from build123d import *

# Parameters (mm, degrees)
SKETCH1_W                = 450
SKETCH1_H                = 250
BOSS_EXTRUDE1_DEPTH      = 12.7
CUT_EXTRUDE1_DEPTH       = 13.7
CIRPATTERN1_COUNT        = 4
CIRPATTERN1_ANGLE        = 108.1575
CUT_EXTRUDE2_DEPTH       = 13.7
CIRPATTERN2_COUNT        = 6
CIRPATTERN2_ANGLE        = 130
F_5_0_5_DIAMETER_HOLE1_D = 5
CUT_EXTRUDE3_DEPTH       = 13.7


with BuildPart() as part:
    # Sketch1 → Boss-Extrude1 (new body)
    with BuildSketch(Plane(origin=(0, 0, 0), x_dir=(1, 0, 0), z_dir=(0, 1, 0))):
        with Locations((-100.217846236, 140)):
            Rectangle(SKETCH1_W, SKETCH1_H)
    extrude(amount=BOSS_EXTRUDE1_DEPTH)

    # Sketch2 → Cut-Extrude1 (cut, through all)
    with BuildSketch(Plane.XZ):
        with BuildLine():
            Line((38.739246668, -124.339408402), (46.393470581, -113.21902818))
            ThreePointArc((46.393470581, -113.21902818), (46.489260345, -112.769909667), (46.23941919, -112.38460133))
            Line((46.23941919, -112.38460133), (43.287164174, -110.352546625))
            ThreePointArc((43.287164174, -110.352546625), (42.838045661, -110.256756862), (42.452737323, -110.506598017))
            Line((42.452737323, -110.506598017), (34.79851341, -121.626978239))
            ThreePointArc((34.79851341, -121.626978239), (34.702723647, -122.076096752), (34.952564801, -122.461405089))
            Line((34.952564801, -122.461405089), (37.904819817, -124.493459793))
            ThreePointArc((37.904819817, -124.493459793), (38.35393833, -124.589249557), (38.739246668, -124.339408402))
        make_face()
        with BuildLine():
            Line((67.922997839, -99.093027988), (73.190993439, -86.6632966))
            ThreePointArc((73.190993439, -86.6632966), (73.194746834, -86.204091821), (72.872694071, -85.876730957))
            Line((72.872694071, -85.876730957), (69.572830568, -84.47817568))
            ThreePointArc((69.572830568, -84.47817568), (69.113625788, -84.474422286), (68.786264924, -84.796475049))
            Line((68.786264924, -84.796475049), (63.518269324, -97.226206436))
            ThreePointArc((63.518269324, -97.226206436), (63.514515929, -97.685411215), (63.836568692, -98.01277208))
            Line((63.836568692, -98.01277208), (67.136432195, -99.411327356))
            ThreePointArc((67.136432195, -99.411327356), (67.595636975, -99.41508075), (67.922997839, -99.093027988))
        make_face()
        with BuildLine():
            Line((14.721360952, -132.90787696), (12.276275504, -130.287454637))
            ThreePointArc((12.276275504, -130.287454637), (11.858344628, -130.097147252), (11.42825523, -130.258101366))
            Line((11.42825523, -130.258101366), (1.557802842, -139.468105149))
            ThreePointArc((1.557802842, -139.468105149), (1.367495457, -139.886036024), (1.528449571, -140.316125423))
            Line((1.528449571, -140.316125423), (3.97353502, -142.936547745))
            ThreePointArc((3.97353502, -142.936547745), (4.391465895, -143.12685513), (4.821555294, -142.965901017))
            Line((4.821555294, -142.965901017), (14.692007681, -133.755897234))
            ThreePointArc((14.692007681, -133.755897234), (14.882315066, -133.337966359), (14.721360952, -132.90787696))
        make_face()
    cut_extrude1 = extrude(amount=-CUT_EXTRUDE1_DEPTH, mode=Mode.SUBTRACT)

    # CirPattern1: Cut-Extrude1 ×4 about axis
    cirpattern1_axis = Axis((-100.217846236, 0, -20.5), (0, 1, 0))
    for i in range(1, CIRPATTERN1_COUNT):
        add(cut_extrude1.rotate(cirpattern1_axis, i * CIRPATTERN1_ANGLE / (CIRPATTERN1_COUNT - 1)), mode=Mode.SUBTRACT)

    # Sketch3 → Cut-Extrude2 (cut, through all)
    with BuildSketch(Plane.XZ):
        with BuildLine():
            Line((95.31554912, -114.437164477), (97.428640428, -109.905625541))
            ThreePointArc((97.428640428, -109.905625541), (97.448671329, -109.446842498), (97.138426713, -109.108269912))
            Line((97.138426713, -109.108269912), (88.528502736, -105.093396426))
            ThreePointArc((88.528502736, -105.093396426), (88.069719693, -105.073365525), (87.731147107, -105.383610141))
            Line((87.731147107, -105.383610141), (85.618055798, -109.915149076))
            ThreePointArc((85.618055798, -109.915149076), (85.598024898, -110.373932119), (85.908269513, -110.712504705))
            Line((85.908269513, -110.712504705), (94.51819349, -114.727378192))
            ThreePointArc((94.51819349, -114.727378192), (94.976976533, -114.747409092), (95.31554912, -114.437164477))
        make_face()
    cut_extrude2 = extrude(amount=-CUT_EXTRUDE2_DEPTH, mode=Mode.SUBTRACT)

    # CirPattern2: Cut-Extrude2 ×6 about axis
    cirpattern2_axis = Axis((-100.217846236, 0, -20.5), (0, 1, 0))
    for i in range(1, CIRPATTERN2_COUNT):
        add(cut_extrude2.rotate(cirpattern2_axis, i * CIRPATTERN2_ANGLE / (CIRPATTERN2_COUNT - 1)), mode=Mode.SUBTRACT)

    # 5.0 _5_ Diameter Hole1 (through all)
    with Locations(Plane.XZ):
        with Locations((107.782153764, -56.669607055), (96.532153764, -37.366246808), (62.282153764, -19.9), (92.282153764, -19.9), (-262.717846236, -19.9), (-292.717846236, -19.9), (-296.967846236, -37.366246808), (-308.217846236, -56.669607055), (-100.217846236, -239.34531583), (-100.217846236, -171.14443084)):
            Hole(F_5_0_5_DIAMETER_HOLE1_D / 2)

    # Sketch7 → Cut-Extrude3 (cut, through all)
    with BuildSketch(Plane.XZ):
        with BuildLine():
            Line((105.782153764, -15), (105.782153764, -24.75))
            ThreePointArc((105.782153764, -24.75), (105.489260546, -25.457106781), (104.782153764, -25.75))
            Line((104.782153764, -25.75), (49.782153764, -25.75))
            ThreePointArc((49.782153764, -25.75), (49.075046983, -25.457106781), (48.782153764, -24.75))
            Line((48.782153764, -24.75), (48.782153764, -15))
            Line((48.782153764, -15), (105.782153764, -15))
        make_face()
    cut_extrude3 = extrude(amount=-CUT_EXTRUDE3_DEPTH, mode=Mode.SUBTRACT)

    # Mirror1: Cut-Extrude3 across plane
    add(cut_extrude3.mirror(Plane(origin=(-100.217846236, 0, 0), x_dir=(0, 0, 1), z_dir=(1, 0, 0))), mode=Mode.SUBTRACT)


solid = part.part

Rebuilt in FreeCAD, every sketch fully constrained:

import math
import FreeCAD as App
import Part
import Sketcher

V = App.Vector
Q = App.Units.Quantity


def add_polygon(sketch, points):
    """Adds a closed chain of lines whose ends are joined by coincident constraints."""
    first, n = sketch.GeometryCount, len(points)
    for a, b in zip(points, points[1:] + points[:1]):
        sketch.addGeometry(Part.LineSegment(App.Vector(*a, 0), App.Vector(*b, 0)), False)
    for i in range(n):
        sketch.addConstraint(Sketcher.Constraint("Coincident", first + i, 2, first + (i + 1) % n, 1))

doc = App.newDocument("Part")
body = doc.addObject("PartDesign::Body", "Body")

sketch1 = doc.addObject("Sketcher::SketchObject", "Sketch")
body.addObject(sketch1)
sketch1.AttachmentSupport = (doc.XZ_Plane, [""])
sketch1.MapMode = "FlatFace"
add_polygon(sketch1, [(-325.217846, -265), (-325.217846, -15), (124.782154, -15), (124.782154, -265)])
sketch1.addConstraint(Sketcher.Constraint("Vertical", 0))
sketch1.addConstraint(Sketcher.Constraint("Horizontal", 1))
sketch1.addConstraint(Sketcher.Constraint("Vertical", 2))
sketch1.addConstraint(Sketcher.Constraint("Horizontal", 3))
sketch1.addConstraint(Sketcher.Constraint("DistanceX", 1, 1, 1, 2, Q("450 mm")))
sketch1.addConstraint(Sketcher.Constraint("DistanceY", 0, 1, 0, 2, Q("250 mm")))
sketch1.addConstraint(Sketcher.Constraint("DistanceY", 0, 2, -1, 1, Q("15 mm")))
sketch1.addConstraint(Sketcher.Constraint("DistanceX", 0, 2, -1, 1, Q("325.217846 mm")))
pad1 = doc.addObject("PartDesign::Pad", "Pad")
body.addObject(pad1)
pad1.Profile = sketch1
pad1.Length = 12.7
pad1.Reversed = True

sketch2 = doc.addObject("Sketcher::SketchObject", "Sketch001")
body.addObject(sketch2)
sketch2.AttachmentSupport = (doc.XZ_Plane, [""])
sketch2.MapMode = "FlatFace"
sketch2.addGeometry(Part.LineSegment(V(38.739247, -124.339408, 0), V(46.393471, -113.219028, 0)), False)
sketch2.addGeometry(Part.ArcOfCircle(Part.Circle(V(45.899231, -112.87884, 0), V(0, 0, 1), 0.6), math.radians(-34.539868), math.radians(55.460132)), False)
sketch2.addGeometry(Part.LineSegment(V(46.239419, -112.384601, 0), V(43.287164, -110.352547, 0)), False)
sketch2.addGeometry(Part.ArcOfCircle(Part.Circle(V(42.946976, -110.846786, 0), V(0, 0, 1), 0.6), math.radians(55.460132), math.radians(145.460132)), False)
sketch2.addGeometry(Part.LineSegment(V(42.452737, -110.506598, 0), V(34.798513, -121.626978, 0)), False)
sketch2.addGeometry(Part.ArcOfCircle(Part.Circle(V(35.292753, -121.967166, 0), V(0, 0, 1), 0.6), math.radians(145.460132), math.radians(235.460132)), False)
sketch2.addGeometry(Part.LineSegment(V(34.952565, -122.461405, 0), V(37.90482, -124.49346, 0)), False)
sketch2.addGeometry(Part.ArcOfCircle(Part.Circle(V(38.245008, -123.999221, 0), V(0, 0, 1), 0.6), math.radians(-124.539868), math.radians(-34.539868)), False)
sketch2.addGeometry(Part.LineSegment(V(67.922998, -99.093028, 0), V(73.190993, -86.663297, 0)), False)
sketch2.addGeometry(Part.ArcOfCircle(Part.Circle(V(72.638561, -86.429163, 0), V(0, 0, 1), 0.6), math.radians(-22.968307), math.radians(67.031693)), False)
sketch2.addGeometry(Part.LineSegment(V(72.872694, -85.876731, 0), V(69.572831, -84.478176, 0)), False)
sketch2.addGeometry(Part.ArcOfCircle(Part.Circle(V(69.338697, -85.030608, 0), V(0, 0, 1), 0.6), math.radians(67.031693), math.radians(157.031693)), False)
sketch2.addGeometry(Part.LineSegment(V(68.786265, -84.796475, 0), V(63.518269, -97.226206, 0)), False)
sketch2.addGeometry(Part.ArcOfCircle(Part.Circle(V(64.070702, -97.46034, 0), V(0, 0, 1), 0.6), math.radians(157.031693), math.radians(247.031693)), False)
sketch2.addGeometry(Part.LineSegment(V(63.836569, -98.012772, 0), V(67.136432, -99.411327, 0)), False)
sketch2.addGeometry(Part.ArcOfCircle(Part.Circle(V(67.370565, -98.858895, 0), V(0, 0, 1), 0.6), math.radians(-112.968307), math.radians(-22.968307)), False)
sketch2.addGeometry(Part.LineSegment(V(14.721361, -132.907877, 0), V(12.276276, -130.287455, 0)), False)
sketch2.addGeometry(Part.ArcOfCircle(Part.Circle(V(11.837589, -130.696788, 0), V(0, 0, 1), 0.6), math.radians(43.017562), math.radians(133.017562)), False)
sketch2.addGeometry(Part.LineSegment(V(11.428255, -130.258101, 0), V(1.557803, -139.468105, 0)), False)
sketch2.addGeometry(Part.ArcOfCircle(Part.Circle(V(1.967136, -139.906792, 0), V(0, 0, 1), 0.6), math.radians(133.017562), math.radians(223.017562)), False)
sketch2.addGeometry(Part.LineSegment(V(1.52845, -140.316125, 0), V(3.973535, -142.936548, 0)), False)
sketch2.addGeometry(Part.ArcOfCircle(Part.Circle(V(4.412222, -142.527214, 0), V(0, 0, 1), 0.6), math.radians(-136.982438), math.radians(-46.982438)), False)
sketch2.addGeometry(Part.LineSegment(V(4.821555, -142.965901, 0), V(14.692008, -133.755897, 0)), False)
sketch2.addGeometry(Part.ArcOfCircle(Part.Circle(V(14.282674, -133.31721, 0), V(0, 0, 1), 0.6), math.radians(-46.982438), math.radians(43.017562)), False)
sketch2.addConstraint(Sketcher.Constraint("Tangent", 0, 2, 1, 1))
sketch2.addConstraint(Sketcher.Constraint("Tangent", 1, 2, 2, 1))
sketch2.addConstraint(Sketcher.Constraint("Tangent", 2, 2, 3, 1))
sketch2.addConstraint(Sketcher.Constraint("Tangent", 3, 2, 4, 1))
sketch2.addConstraint(Sketcher.Constraint("Tangent", 4, 2, 5, 1))
sketch2.addConstraint(Sketcher.Constraint("Tangent", 5, 2, 6, 1))
sketch2.addConstraint(Sketcher.Constraint("Tangent", 6, 2, 7, 1))
sketch2.addConstraint(Sketcher.Constraint("Tangent", 7, 2, 0, 1))
sketch2.addConstraint(Sketcher.Constraint("Tangent", 8, 2, 9, 1))
sketch2.addConstraint(Sketcher.Constraint("Tangent", 9, 2, 10, 1))
sketch2.addConstraint(Sketcher.Constraint("Tangent", 10, 2, 11, 1))
sketch2.addConstraint(Sketcher.Constraint("Tangent", 11, 2, 12, 1))
sketch2.addConstraint(Sketcher.Constraint("Tangent", 12, 2, 13, 1))
sketch2.addConstraint(Sketcher.Constraint("Tangent", 13, 2, 14, 1))
sketch2.addConstraint(Sketcher.Constraint("Tangent", 14, 2, 15, 1))
sketch2.addConstraint(Sketcher.Constraint("Tangent", 15, 2, 8, 1))
sketch2.addConstraint(Sketcher.Constraint("Tangent", 16, 2, 17, 1))
sketch2.addConstraint(Sketcher.Constraint("Tangent", 17, 2, 18, 1))
sketch2.addConstraint(Sketcher.Constraint("Tangent", 18, 2, 19, 1))
sketch2.addConstraint(Sketcher.Constraint("Tangent", 19, 2, 20, 1))
sketch2.addConstraint(Sketcher.Constraint("Tangent", 20, 2, 21, 1))
sketch2.addConstraint(Sketcher.Constraint("Tangent", 21, 2, 22, 1))
sketch2.addConstraint(Sketcher.Constraint("Tangent", 22, 2, 23, 1))
sketch2.addConstraint(Sketcher.Constraint("Tangent", 23, 2, 16, 1))
sketch2.addConstraint(Sketcher.Constraint("Equal", 1, 3))
sketch2.addConstraint(Sketcher.Constraint("Equal", 3, 5))
sketch2.addConstraint(Sketcher.Constraint("Equal", 5, 7))
sketch2.addConstraint(Sketcher.Constraint("Equal", 7, 9))
sketch2.addConstraint(Sketcher.Constraint("Equal", 9, 11))
sketch2.addConstraint(Sketcher.Constraint("Equal", 11, 13))
sketch2.addConstraint(Sketcher.Constraint("Equal", 13, 15))
sketch2.addConstraint(Sketcher.Constraint("Equal", 15, 17))
sketch2.addConstraint(Sketcher.Constraint("Equal", 17, 19))
sketch2.addConstraint(Sketcher.Constraint("Equal", 19, 21))
sketch2.addConstraint(Sketcher.Constraint("Equal", 21, 23))
sketch2.addConstraint(Sketcher.Constraint("Perpendicular", 0, 2))
sketch2.addConstraint(Sketcher.Constraint("Perpendicular", 2, 4))
sketch2.addConstraint(Sketcher.Constraint("Perpendicular", 4, 6))
sketch2.addConstraint(Sketcher.Constraint("Perpendicular", 8, 10))
sketch2.addConstraint(Sketcher.Constraint("Perpendicular", 10, 12))
sketch2.addConstraint(Sketcher.Constraint("Perpendicular", 12, 14))
sketch2.addConstraint(Sketcher.Constraint("Perpendicular", 16, 18))
sketch2.addConstraint(Sketcher.Constraint("Perpendicular", 18, 20))
sketch2.addConstraint(Sketcher.Constraint("Perpendicular", 20, 22))
sketch2.addConstraint(Sketcher.Constraint("Equal", 4, 8))
sketch2.addConstraint(Sketcher.Constraint("Equal", 6, 10))
sketch2.addConstraint(Sketcher.Constraint("Equal", 14, 16))
sketch2.addConstraint(Sketcher.Constraint("Equal", 12, 18))
sketch2.addConstraint(Sketcher.Constraint("Radius", 1, Q("0.6 mm")))
sketch2.addConstraint(Sketcher.Constraint("Distance", 0, Q("13.5 mm")))
sketch2.addConstraint(Sketcher.Constraint("Distance", 2, Q("3.584 mm")))
sketch2.addConstraint(Sketcher.Constraint("DistanceX", -1, 1, 13, 3, Q("64.070702 mm")))
sketch2.addConstraint(Sketcher.Constraint("DistanceY", 1, 2, -1, 1, Q("112.384601 mm")))
sketch2.addConstraint(Sketcher.Constraint("DistanceY", 3, 2, -1, 1, Q("110.506598 mm")))
sketch2.addConstraint(Sketcher.Constraint("DistanceY", 17, 2, -1, 1, Q("130.258101 mm")))
sketch2.addConstraint(Sketcher.Constraint("DistanceY", 21, 2, -1, 1, Q("142.965901 mm")))
sketch2.addConstraint(Sketcher.Constraint("DistanceY", 1, 3, 13, 3, Q("15.418501 mm")))
sketch2.addConstraint(Sketcher.Constraint("DistanceY", 15, 3, 8, 2, Q("12.195598 mm")))
sketch2.addConstraint(Sketcher.Constraint("DistanceX", -1, 1, 1, 3, Q("45.899231 mm")))
sketch2.addConstraint(Sketcher.Constraint("DistanceX", -1, 1, 17, 3, Q("11.837589 mm")))
pocket1 = doc.addObject("PartDesign::Pocket", "Pocket")
body.addObject(pocket1)
pocket1.Profile = sketch2
pocket1.Type = "ThroughAll"
doc.recompute()

datumline = doc.addObject("PartDesign::Line", "DatumLine")
body.addObject(datumline)
datumline.Placement = App.Placement(V(-100.217846, 0, -20.5), App.Rotation(V(0, 0, 1), V(0, 1, 0)))
polarpattern = doc.addObject("PartDesign::PolarPattern", "PolarPattern")
body.addObject(polarpattern)
polarpattern.Originals = [pocket1]
polarpattern.Axis = (datumline, [""])
polarpattern.Angle = 108.1575
polarpattern.Occurrences = 4
body.Tip = polarpattern

sketch3 = doc.addObject("Sketcher::SketchObject", "Sketch002")
body.addObject(sketch3)
sketch3.AttachmentSupport = (doc.XZ_Plane, [""])
sketch3.MapMode = "FlatFace"
sketch3.addGeometry(Part.LineSegment(V(95.315549, -114.437164, 0), V(97.42864, -109.905626, 0)), False)
sketch3.addGeometry(Part.ArcOfCircle(Part.Circle(V(96.884856, -109.652055, 0), V(0, 0, 1), 0.6), math.radians(-25), math.radians(65)), False)
sketch3.addGeometry(Part.LineSegment(V(97.138427, -109.10827, 0), V(88.528503, -105.093396, 0)), False)
sketch3.addGeometry(Part.ArcOfCircle(Part.Circle(V(88.274932, -105.637181, 0), V(0, 0, 1), 0.6), math.radians(65), math.radians(155)), False)
sketch3.addGeometry(Part.LineSegment(V(87.731147, -105.38361, 0), V(85.618056, -109.915149, 0)), False)
sketch3.addGeometry(Part.ArcOfCircle(Part.Circle(V(86.16184, -110.16872, 0), V(0, 0, 1), 0.6), math.radians(155), math.radians(245)), False)
sketch3.addGeometry(Part.LineSegment(V(85.90827, -110.712505, 0), V(94.518193, -114.727378, 0)), False)
sketch3.addGeometry(Part.ArcOfCircle(Part.Circle(V(94.771764, -114.183594, 0), V(0, 0, 1), 0.6), math.radians(-115), math.radians(-25)), False)
sketch3.addConstraint(Sketcher.Constraint("Tangent", 0, 2, 1, 1))
sketch3.addConstraint(Sketcher.Constraint("Tangent", 1, 2, 2, 1))
sketch3.addConstraint(Sketcher.Constraint("Tangent", 2, 2, 3, 1))
sketch3.addConstraint(Sketcher.Constraint("Tangent", 3, 2, 4, 1))
sketch3.addConstraint(Sketcher.Constraint("Tangent", 4, 2, 5, 1))
sketch3.addConstraint(Sketcher.Constraint("Tangent", 5, 2, 6, 1))
sketch3.addConstraint(Sketcher.Constraint("Tangent", 6, 2, 7, 1))
sketch3.addConstraint(Sketcher.Constraint("Tangent", 7, 2, 0, 1))
sketch3.addConstraint(Sketcher.Constraint("Equal", 1, 3))
sketch3.addConstraint(Sketcher.Constraint("Equal", 3, 5))
sketch3.addConstraint(Sketcher.Constraint("Equal", 5, 7))
sketch3.addConstraint(Sketcher.Constraint("Perpendicular", 0, 2))
sketch3.addConstraint(Sketcher.Constraint("Perpendicular", 2, 4))
sketch3.addConstraint(Sketcher.Constraint("Perpendicular", 4, 6))
sketch3.addConstraint(Sketcher.Constraint("Radius", 1, Q("0.6 mm")))
sketch3.addConstraint(Sketcher.Constraint("Angle", 0, Q("65 deg")))
sketch3.addConstraint(Sketcher.Constraint("Distance", 0, Q("5 mm")))
sketch3.addConstraint(Sketcher.Constraint("Distance", 2, Q("9.5 mm")))
sketch3.addConstraint(Sketcher.Constraint("DistanceX", -1, 1, 3, 3, Q("88.274932 mm")))
sketch3.addConstraint(Sketcher.Constraint("DistanceY", 3, 3, -1, 1, Q("105.637181 mm")))
pocket2 = doc.addObject("PartDesign::Pocket", "Pocket001")
body.addObject(pocket2)
pocket2.Profile = sketch3
pocket2.Type = "ThroughAll"
doc.recompute()

datumline2 = doc.addObject("PartDesign::Line", "DatumLine001")
body.addObject(datumline2)
datumline2.Placement = App.Placement(V(-100.217846, 0, -20.5), App.Rotation(V(0, 0, 1), V(0, 1, 0)))
polarpattern2 = doc.addObject("PartDesign::PolarPattern", "PolarPattern001")
body.addObject(polarpattern2)
polarpattern2.Originals = [pocket2]
polarpattern2.Axis = (datumline2, [""])
polarpattern2.Angle = 130
polarpattern2.Occurrences = 6
body.Tip = polarpattern2

sketch4 = doc.addObject("Sketcher::SketchObject", "Sketch003")
body.addObject(sketch4)
sketch4.AttachmentSupport = (doc.XZ_Plane, [""])
sketch4.MapMode = "FlatFace"
sketch4.addGeometry(Part.Circle(V(107.782154, -56.669607, 0), V(0, 0, 1), 2.5), False)
sketch4.addGeometry(Part.Circle(V(96.532154, -37.366247, 0), V(0, 0, 1), 2.5), False)
sketch4.addGeometry(Part.Circle(V(62.282154, -19.9, 0), V(0, 0, 1), 2.5), False)
sketch4.addGeometry(Part.Circle(V(92.282154, -19.9, 0), V(0, 0, 1), 2.5), False)
sketch4.addGeometry(Part.Circle(V(-262.717846, -19.9, 0), V(0, 0, 1), 2.5), False)
sketch4.addGeometry(Part.Circle(V(-292.717846, -19.9, 0), V(0, 0, 1), 2.5), False)
sketch4.addGeometry(Part.Circle(V(-296.967846, -37.366247, 0), V(0, 0, 1), 2.5), False)
sketch4.addGeometry(Part.Circle(V(-308.217846, -56.669607, 0), V(0, 0, 1), 2.5), False)
sketch4.addGeometry(Part.Circle(V(-100.217846, -239.345316, 0), V(0, 0, 1), 2.5), False)
sketch4.addGeometry(Part.Circle(V(-100.217846, -171.144431, 0), V(0, 0, 1), 2.5), False)
sketch4.addConstraint(Sketcher.Constraint("Equal", 0, 1))
sketch4.addConstraint(Sketcher.Constraint("Equal", 1, 2))
sketch4.addConstraint(Sketcher.Constraint("Equal", 2, 3))
sketch4.addConstraint(Sketcher.Constraint("Equal", 3, 4))
sketch4.addConstraint(Sketcher.Constraint("Equal", 4, 5))
sketch4.addConstraint(Sketcher.Constraint("Equal", 5, 6))
sketch4.addConstraint(Sketcher.Constraint("Equal", 6, 7))
sketch4.addConstraint(Sketcher.Constraint("Equal", 7, 8))
sketch4.addConstraint(Sketcher.Constraint("Equal", 8, 9))
sketch4.addConstraint(Sketcher.Constraint("Horizontal", 2, 3, 3, 3))
sketch4.addConstraint(Sketcher.Constraint("Horizontal", 3, 3, 4, 3))
sketch4.addConstraint(Sketcher.Constraint("Horizontal", 4, 3, 5, 3))
sketch4.addConstraint(Sketcher.Constraint("Horizontal", 1, 3, 6, 3))
sketch4.addConstraint(Sketcher.Constraint("Horizontal", 0, 3, 7, 3))
sketch4.addConstraint(Sketcher.Constraint("Vertical", 8, 3, 9, 3))
sketch4.addConstraint(Sketcher.Constraint("Diameter", 0, Q("5 mm")))
sketch4.addConstraint(Sketcher.Constraint("DistanceX", 2, 3, 3, 3, Q("30 mm")))
sketch4.addConstraint(Sketcher.Constraint("DistanceX", 4, 3, 2, 3, Q("325 mm")))
sketch4.addConstraint(Sketcher.Constraint("DistanceX", 5, 3, 4, 3, Q("30 mm")))
sketch4.addConstraint(Sketcher.Constraint("DistanceX", 8, 3, 0, 3, Q("208 mm")))
sketch4.addConstraint(Sketcher.Constraint("DistanceX", 7, 3, 8, 3, Q("208 mm")))
sketch4.addConstraint(Sketcher.Constraint("DistanceY", 2, 3, -1, 1, Q("19.9 mm")))
sketch4.addConstraint(Sketcher.Constraint("DistanceX", 2, 3, 0, 3, Q("45.5 mm")))
sketch4.addConstraint(Sketcher.Constraint("DistanceX", 6, 3, 1, 3, Q("393.5 mm")))
sketch4.addConstraint(Sketcher.Constraint("DistanceX", 1, 3, 0, 3, Q("11.25 mm")))
sketch4.addConstraint(Sketcher.Constraint("DistanceY", 9, 3, -1, 1, Q("171.144431 mm")))
sketch4.addConstraint(Sketcher.Constraint("DistanceY", 0, 3, 1, 3, Q("19.30336 mm")))
sketch4.addConstraint(Sketcher.Constraint("DistanceY", 8, 3, 0, 3, Q("182.675709 mm")))
sketch4.addConstraint(Sketcher.Constraint("DistanceX", -1, 1, 0, 3, Q("107.782154 mm")))
sketch4.addConstraint(Sketcher.Constraint("DistanceY", 0, 3, -1, 1, Q("56.669607 mm")))
doc.recompute()
hole = doc.addObject("PartDesign::Hole", "Hole")
body.addObject(hole)
hole.Profile = sketch4
hole.ThreadType = "None"
hole.Diameter = 5
hole.DepthType = "ThroughAll"

sketch5 = doc.addObject("Sketcher::SketchObject", "Sketch004")
body.addObject(sketch5)
sketch5.AttachmentSupport = (doc.XZ_Plane, [""])
sketch5.MapMode = "FlatFace"
sketch5.addGeometry(Part.LineSegment(V(105.782154, -24.75, 0), V(105.782154, -15, 0)), False)
sketch5.addGeometry(Part.LineSegment(V(105.782154, -15, 0), V(48.782154, -15, 0)), False)
sketch5.addGeometry(Part.LineSegment(V(48.782154, -15, 0), V(48.782154, -24.75, 0)), False)
sketch5.addGeometry(Part.ArcOfCircle(Part.Circle(V(49.782154, -24.75, 0), V(0, 0, 1), 1), math.radians(-180), math.radians(-90)), False)
sketch5.addGeometry(Part.LineSegment(V(49.782154, -25.75, 0), V(104.782154, -25.75, 0)), False)
sketch5.addGeometry(Part.ArcOfCircle(Part.Circle(V(104.782154, -24.75, 0), V(0, 0, 1), 1), math.radians(-90), math.radians(0)), False)
sketch5.addConstraint(Sketcher.Constraint("Coincident", 0, 2, 1, 1))
sketch5.addConstraint(Sketcher.Constraint("Coincident", 1, 2, 2, 1))
sketch5.addConstraint(Sketcher.Constraint("Tangent", 2, 2, 3, 1))
sketch5.addConstraint(Sketcher.Constraint("Tangent", 3, 2, 4, 1))
sketch5.addConstraint(Sketcher.Constraint("Tangent", 4, 2, 5, 1))
sketch5.addConstraint(Sketcher.Constraint("Tangent", 5, 2, 0, 1))
sketch5.addConstraint(Sketcher.Constraint("Vertical", 0))
sketch5.addConstraint(Sketcher.Constraint("Horizontal", 1))
sketch5.addConstraint(Sketcher.Constraint("Vertical", 2))
sketch5.addConstraint(Sketcher.Constraint("Horizontal", 4))
sketch5.addConstraint(Sketcher.Constraint("Equal", 3, 5))
sketch5.addConstraint(Sketcher.Constraint("Radius", 3, Q("1 mm")))
sketch5.addConstraint(Sketcher.Constraint("DistanceX", 1, 2, 1, 1, Q("57 mm")))
sketch5.addConstraint(Sketcher.Constraint("DistanceY", 0, 2, -1, 1, Q("15 mm")))
sketch5.addConstraint(Sketcher.Constraint("DistanceY", 0, 1, 0, 2, Q("9.75 mm")))
sketch5.addConstraint(Sketcher.Constraint("DistanceX", -1, 1, 3, 3, Q("49.782154 mm")))
pocket3 = doc.addObject("PartDesign::Pocket", "Pocket002")
body.addObject(pocket3)
pocket3.Profile = sketch5
pocket3.Type = "ThroughAll"
doc.recompute()

datumplane = doc.addObject("PartDesign::Plane", "DatumPlane")
body.addObject(datumplane)
datumplane.AttachmentSupport = (doc.YZ_Plane, [""])
datumplane.MapMode = "FlatFace"
datumplane.AttachmentOffset = App.Placement(V(0, 0, -100.217846), App.Rotation())
mirrored = doc.addObject("PartDesign::Mirrored", "Mirrored")
body.addObject(mirrored)
mirrored.Originals = [pocket3]
mirrored.MirrorPlane = (datumplane, [""])
body.Tip = mirrored

doc.recompute()
